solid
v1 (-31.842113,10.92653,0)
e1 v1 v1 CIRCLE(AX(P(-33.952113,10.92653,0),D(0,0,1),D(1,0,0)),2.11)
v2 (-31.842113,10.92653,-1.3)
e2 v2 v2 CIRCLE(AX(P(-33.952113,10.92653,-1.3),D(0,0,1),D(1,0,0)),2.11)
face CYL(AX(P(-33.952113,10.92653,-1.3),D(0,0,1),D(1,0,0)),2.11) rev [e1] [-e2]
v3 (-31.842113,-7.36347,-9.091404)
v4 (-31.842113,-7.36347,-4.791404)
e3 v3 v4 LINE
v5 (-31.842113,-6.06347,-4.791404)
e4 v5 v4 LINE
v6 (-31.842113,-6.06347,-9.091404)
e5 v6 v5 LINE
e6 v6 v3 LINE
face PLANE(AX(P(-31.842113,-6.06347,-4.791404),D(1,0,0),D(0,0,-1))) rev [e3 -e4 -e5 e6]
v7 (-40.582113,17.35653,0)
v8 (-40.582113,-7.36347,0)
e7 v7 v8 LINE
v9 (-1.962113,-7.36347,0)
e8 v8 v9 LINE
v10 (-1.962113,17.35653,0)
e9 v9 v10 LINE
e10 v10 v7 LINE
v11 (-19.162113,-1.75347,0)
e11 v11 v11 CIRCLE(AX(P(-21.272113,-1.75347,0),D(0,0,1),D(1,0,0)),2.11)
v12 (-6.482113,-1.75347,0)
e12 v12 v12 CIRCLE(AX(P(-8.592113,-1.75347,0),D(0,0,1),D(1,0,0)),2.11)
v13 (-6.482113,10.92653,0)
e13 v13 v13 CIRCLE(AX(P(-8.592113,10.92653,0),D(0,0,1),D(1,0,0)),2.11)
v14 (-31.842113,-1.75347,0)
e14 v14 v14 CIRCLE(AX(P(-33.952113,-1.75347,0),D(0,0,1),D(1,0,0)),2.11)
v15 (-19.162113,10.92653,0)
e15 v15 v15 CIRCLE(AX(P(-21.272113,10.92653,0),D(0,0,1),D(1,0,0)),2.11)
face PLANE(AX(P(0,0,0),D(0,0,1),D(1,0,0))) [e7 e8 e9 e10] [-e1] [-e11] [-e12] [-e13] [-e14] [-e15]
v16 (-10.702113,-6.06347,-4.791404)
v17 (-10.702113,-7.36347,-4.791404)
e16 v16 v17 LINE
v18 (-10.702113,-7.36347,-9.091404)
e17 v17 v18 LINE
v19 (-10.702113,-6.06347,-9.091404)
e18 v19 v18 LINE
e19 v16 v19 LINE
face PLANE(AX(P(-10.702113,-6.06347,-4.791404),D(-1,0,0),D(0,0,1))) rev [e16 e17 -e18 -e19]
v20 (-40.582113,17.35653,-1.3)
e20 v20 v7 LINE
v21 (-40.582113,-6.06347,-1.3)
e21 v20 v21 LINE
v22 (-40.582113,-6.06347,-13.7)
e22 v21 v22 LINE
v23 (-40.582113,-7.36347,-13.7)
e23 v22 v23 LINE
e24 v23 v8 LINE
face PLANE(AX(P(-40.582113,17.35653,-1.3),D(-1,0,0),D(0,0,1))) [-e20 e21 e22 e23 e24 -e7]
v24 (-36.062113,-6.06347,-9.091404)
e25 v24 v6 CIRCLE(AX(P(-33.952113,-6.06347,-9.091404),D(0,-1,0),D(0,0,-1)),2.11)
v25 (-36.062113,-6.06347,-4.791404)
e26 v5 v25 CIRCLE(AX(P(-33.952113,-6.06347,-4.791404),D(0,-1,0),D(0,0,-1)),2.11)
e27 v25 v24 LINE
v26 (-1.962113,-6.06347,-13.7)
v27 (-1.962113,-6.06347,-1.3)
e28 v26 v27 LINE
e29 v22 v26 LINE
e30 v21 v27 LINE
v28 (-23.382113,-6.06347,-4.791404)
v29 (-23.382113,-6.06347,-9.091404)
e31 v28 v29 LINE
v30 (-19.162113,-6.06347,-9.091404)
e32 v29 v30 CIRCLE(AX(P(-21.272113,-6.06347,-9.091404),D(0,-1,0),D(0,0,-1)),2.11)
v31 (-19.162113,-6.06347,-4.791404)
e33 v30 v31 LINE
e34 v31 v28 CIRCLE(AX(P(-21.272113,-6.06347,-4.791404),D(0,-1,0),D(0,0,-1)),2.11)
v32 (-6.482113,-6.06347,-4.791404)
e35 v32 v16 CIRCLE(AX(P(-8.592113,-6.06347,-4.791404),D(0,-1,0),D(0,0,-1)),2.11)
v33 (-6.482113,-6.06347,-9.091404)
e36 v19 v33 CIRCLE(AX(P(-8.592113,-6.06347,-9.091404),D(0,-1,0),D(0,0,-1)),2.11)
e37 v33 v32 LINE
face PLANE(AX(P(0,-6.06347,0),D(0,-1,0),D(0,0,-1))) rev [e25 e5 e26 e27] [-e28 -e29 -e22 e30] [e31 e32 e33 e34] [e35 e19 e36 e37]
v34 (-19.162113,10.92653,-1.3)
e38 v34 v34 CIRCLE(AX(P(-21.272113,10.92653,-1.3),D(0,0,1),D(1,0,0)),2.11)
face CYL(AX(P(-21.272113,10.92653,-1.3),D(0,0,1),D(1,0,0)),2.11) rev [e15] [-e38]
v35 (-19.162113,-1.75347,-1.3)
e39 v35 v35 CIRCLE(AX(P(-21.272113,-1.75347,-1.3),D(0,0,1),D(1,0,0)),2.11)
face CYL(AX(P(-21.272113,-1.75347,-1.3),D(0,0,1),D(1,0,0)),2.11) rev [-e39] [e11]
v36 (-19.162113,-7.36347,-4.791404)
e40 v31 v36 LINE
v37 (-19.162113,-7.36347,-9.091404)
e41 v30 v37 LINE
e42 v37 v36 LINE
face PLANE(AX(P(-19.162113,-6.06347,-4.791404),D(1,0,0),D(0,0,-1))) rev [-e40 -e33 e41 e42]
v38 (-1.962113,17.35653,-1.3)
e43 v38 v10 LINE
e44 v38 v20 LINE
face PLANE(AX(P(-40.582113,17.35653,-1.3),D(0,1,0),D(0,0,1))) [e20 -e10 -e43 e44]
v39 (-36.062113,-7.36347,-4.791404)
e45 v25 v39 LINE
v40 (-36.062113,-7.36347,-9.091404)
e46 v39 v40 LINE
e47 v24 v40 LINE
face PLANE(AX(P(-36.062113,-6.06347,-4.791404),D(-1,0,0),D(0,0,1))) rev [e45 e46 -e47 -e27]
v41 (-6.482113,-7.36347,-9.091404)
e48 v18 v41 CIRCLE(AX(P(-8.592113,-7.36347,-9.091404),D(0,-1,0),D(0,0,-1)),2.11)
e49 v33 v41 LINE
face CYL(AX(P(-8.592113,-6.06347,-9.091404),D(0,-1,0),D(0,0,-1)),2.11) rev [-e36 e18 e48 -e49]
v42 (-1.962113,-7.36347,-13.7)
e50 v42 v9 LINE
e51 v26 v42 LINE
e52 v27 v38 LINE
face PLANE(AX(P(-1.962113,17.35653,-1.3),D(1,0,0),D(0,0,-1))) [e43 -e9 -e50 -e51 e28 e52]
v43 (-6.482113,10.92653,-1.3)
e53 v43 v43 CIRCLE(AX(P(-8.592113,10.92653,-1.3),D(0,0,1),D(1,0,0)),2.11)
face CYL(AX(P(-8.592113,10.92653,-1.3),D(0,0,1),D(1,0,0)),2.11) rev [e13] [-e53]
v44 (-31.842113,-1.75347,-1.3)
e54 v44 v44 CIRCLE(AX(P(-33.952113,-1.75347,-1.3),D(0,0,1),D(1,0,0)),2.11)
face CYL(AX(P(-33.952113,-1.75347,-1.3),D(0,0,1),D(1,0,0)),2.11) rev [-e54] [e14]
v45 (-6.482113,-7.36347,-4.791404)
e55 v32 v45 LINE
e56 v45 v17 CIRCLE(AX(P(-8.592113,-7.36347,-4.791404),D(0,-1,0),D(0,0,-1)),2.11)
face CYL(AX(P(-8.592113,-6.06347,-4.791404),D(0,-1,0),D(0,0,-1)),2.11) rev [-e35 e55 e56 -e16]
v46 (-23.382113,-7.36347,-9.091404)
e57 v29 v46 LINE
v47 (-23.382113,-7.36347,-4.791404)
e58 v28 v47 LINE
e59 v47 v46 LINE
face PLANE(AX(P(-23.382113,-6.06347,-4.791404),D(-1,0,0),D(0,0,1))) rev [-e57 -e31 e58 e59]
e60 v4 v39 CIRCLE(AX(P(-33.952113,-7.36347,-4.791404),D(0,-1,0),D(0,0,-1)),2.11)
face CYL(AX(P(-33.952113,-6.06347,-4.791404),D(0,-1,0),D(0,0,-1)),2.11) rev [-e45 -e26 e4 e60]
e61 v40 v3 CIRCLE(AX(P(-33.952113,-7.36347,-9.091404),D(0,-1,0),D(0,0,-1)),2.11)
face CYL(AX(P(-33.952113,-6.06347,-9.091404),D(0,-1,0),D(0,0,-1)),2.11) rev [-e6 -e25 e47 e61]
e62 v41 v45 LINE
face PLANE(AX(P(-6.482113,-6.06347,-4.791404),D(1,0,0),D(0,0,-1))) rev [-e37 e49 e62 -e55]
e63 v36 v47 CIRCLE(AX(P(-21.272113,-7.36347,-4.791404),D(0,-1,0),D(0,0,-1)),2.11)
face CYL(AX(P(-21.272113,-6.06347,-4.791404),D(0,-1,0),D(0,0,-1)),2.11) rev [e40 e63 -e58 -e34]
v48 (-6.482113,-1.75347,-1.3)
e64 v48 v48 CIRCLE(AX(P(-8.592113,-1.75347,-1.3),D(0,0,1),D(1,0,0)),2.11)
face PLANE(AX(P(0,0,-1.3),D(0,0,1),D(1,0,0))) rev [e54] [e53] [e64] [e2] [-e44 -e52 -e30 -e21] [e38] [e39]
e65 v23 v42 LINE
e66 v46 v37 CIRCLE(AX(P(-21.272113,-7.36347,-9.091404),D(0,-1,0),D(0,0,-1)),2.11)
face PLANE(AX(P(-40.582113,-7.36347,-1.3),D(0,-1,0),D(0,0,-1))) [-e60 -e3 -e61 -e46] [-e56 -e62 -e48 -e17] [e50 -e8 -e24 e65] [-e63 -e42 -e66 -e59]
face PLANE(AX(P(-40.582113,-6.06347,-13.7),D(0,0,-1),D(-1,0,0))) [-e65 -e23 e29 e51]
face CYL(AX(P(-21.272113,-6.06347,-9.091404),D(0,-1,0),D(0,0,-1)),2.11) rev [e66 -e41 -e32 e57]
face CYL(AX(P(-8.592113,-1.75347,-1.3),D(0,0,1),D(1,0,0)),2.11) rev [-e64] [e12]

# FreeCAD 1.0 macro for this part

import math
import FreeCAD as App
import Part
import Sketcher
from FreeCAD import Vector

doc = App.newDocument("Part")
body = doc.addObject("PartDesign::Body", "Body")

# Sketch on XY plane
sketch1 = body.newObject("Sketcher::SketchObject", "Sketch")
sketch1.AttachmentSupport = (doc.getObject("XY_Plane"), [""])
sketch1.MapMode = "FlatFace"
sketch1.addGeometry(Part.LineSegment(Vector(-40.6, 17.4, 0), Vector(-40.6, -7.4, 0)), False)
sketch1.addGeometry(Part.LineSegment(Vector(-40.6, -7.4, 0), Vector(-2, -7.4, 0)), False)
sketch1.addGeometry(Part.LineSegment(Vector(-2, -7.4, 0), Vector(-2, 17.4, 0)), False)
sketch1.addGeometry(Part.LineSegment(Vector(-2, 17.4, 0), Vector(-40.6, 17.4, 0)), False)
sketch1.addGeometry(Part.Circle(Vector(-34, -1.8, 0), Vector(0, 0, 1), 2.1), False)
sketch1.addGeometry(Part.Circle(Vector(-21.3, -1.8, 0), Vector(0, 0, 1), 2.1), False)
sketch1.addGeometry(Part.Circle(Vector(-8.6, -1.8, 0), Vector(0, 0, 1), 2.1), False)
sketch1.addGeometry(Part.Circle(Vector(-34, 10.9, 0), Vector(0, 0, 1), 2.1), False)
sketch1.addGeometry(Part.Circle(Vector(-21.3, 10.9, 0), Vector(0, 0, 1), 2.1), False)
sketch1.addGeometry(Part.Circle(Vector(-8.6, 10.9, 0), Vector(0, 0, 1), 2.1), False)
sketch1.addConstraint(Sketcher.Constraint("Coincident", 0, 2, 1, 1))
sketch1.addConstraint(Sketcher.Constraint("Coincident", 1, 2, 2, 1))
sketch1.addConstraint(Sketcher.Constraint("Coincident", 2, 2, 3, 1))
sketch1.addConstraint(Sketcher.Constraint("Coincident", 3, 2, 0, 1))
sketch1.addConstraint(Sketcher.Constraint("Vertical", 0))
sketch1.addConstraint(Sketcher.Constraint("Horizontal", 1))
sketch1.addConstraint(Sketcher.Constraint("Vertical", 2))
sketch1.addConstraint(Sketcher.Constraint("Horizontal", 3))
sketch1.addConstraint(Sketcher.Constraint("Equal", 4, 5))
sketch1.addConstraint(Sketcher.Constraint("Equal", 5, 6))
sketch1.addConstraint(Sketcher.Constraint("Equal", 6, 7))
sketch1.addConstraint(Sketcher.Constraint("Equal", 7, 8))
sketch1.addConstraint(Sketcher.Constraint("Equal", 8, 9))
sketch1.addConstraint(Sketcher.Constraint("Horizontal", 4, 3, 5, 3))
sketch1.addConstraint(Sketcher.Constraint("Horizontal", 5, 3, 6, 3))
sketch1.addConstraint(Sketcher.Constraint("Horizontal", 7, 3, 8, 3))
sketch1.addConstraint(Sketcher.Constraint("Horizontal", 8, 3, 9, 3))
sketch1.addConstraint(Sketcher.Constraint("Vertical", 4, 3, 7, 3))
sketch1.addConstraint(Sketcher.Constraint("Vertical", 5, 3, 8, 3))
sketch1.addConstraint(Sketcher.Constraint("Vertical", 6, 3, 9, 3))
sketch1.addConstraint(Sketcher.Constraint("Diameter", 4, 4.22))
sketch1.addConstraint(Sketcher.Constraint("DistanceX", 1, 1, 1, 2, 38.62))
sketch1.addConstraint(Sketcher.Constraint("DistanceY", 0, 2, 0, 1, 24.72))
sketch1.addConstraint(Sketcher.Constraint("DistanceX", 4, 3, 5, 3, 12.68))
sketch1.addConstraint(Sketcher.Constraint("DistanceX", 5, 3, 6, 3, 12.68))
sketch1.addConstraint(Sketcher.Constraint("DistanceY", 4, 3, 7, 3, 12.68))
sketch1.addConstraint(Sketcher.Constraint("DistanceX", 0, 2, 4, 3, 6.63))
sketch1.addConstraint(Sketcher.Constraint("DistanceY", 0, 2, 4, 3, 5.61))
sketch1.addConstraint(Sketcher.Constraint("DistanceY", 4, 3, -1, 1, 1.75347))
sketch1.addConstraint(Sketcher.Constraint("DistanceX", 4, 3, -1, 1, 33.952113))
pad1 = body.newObject("PartDesign::Pad", "Pad")
pad1.Profile = sketch1
pad1.Length = 1.3
pad1.Reversed = True

# Sketch on XZ plane
sketch2 = body.newObject("Sketcher::SketchObject", "Sketch001")
sketch2.AttachmentSupport = (doc.getObject("XZ_Plane"), [""])
sketch2.MapMode = "FlatFace"
sketch2.AttachmentOffset = App.Placement(Vector(0, 0, 7.36347), App.Rotation())
sketch2.addGeometry(Part.LineSegment(Vector(-40.6, 0, 0), Vector(-40.6, -13.7, 0)), False)
sketch2.addGeometry(Part.LineSegment(Vector(-40.6, -13.7, 0), Vector(-2, -13.7, 0)), False)
sketch2.addGeometry(Part.LineSegment(Vector(-2, -13.7, 0), Vector(-2, 0, 0)), False)
sketch2.addGeometry(Part.LineSegment(Vector(-2, 0, 0), Vector(-40.6, 0, 0)), False)
sketch2.addGeometry(Part.ArcOfCircle(Part.Circle(Vector(-8.6, -4.8, 0), Vector(0, 0, 1), 2.1), math.radians(0), math.radians(180)), False)
sketch2.addGeometry(Part.LineSegment(Vector(-6.5, -4.8, 0), Vector(-6.5, -9.1, 0)), False)
sketch2.addGeometry(Part.ArcOfCircle(Part.Circle(Vector(-8.6, -9.1, 0), Vector(0, 0, 1), 2.1), math.radians(180), math.radians(360)), False)
sketch2.addGeometry(Part.LineSegment(Vector(-10.7, -9.1, 0), Vector(-10.7, -4.8, 0)), False)
sketch2.addGeometry(Part.ArcOfCircle(Part.Circle(Vector(-34, -4.8, 0), Vector(0, 0, 1), 2.1), math.radians(0), math.radians(180)), False)
sketch2.addGeometry(Part.LineSegment(Vector(-31.8, -4.8, 0), Vector(-31.8, -9.1, 0)), False)
sketch2.addGeometry(Part.ArcOfCircle(Part.Circle(Vector(-34, -9.1, 0), Vector(0, 0, 1), 2.1), math.radians(180), math.radians(360)), False)
sketch2.addGeometry(Part.LineSegment(Vector(-36.1, -9.1, 0), Vector(-36.1, -4.8, 0)), False)
sketch2.addGeometry(Part.ArcOfCircle(Part.Circle(Vector(-21.3, -4.8, 0), Vector(0, 0, 1), 2.1), math.radians(0), math.radians(180)), False)
sketch2.addGeometry(Part.LineSegment(Vector(-19.2, -4.8, 0), Vector(-19.2, -9.1, 0)), False)
sketch2.addGeometry(Part.ArcOfCircle(Part.Circle(Vector(-21.3, -9.1, 0), Vector(0, 0, 1), 2.1), math.radians(180), math.radians(360)), False)
sketch2.addGeometry(Part.LineSegment(Vector(-23.4, -9.1, 0), Vector(-23.4, -4.8, 0)), False)
sketch2.addConstraint(Sketcher.Constraint("Coincident", 0, 2, 1, 1))
sketch2.addConstraint(Sketcher.Constraint("Coincident", 1, 2, 2, 1))
sketch2.addConstraint(Sketcher.Constraint("Coincident", 2, 2, 3, 1))
sketch2.addConstraint(Sketcher.Constraint("Coincident", 3, 2, 0, 1))
sketch2.addConstraint(Sketcher.Constraint("Tangent", 4, 1, 5, 1))
sketch2.addConstraint(Sketcher.Constraint("Tangent", 5, 2, 6, 2))
sketch2.addConstraint(Sketcher.Constraint("Tangent", 6, 1, 7, 1))
sketch2.addConstraint(Sketcher.Constraint("Tangent", 7, 2, 4, 2))
sketch2.addConstraint(Sketcher.Constraint("Tangent", 8, 1, 9, 1))
sketch2.addConstraint(Sketcher.Constraint("Tangent", 9, 2, 10, 2))
sketch2.addConstraint(Sketcher.Constraint("Tangent", 10, 1, 11, 1))
sketch2.addConstraint(Sketcher.Constraint("Tangent", 11, 2, 8, 2))
sketch2.addConstraint(Sketcher.Constraint("Tangent", 12, 1, 13, 1))
sketch2.addConstraint(Sketcher.Constraint("Tangent", 13, 2, 14, 2))
sketch2.addConstraint(Sketcher.Constraint("Tangent", 14, 1, 15, 1))
sketch2.addConstraint(Sketcher.Constraint("Tangent", 15, 2, 12, 2))
sketch2.addConstraint(Sketcher.Constraint("Vertical", 0))
sketch2.addConstraint(Sketcher.Constraint("Horizontal", 1))
sketch2.addConstraint(Sketcher.Constraint("Vertical", 2))
sketch2.addConstraint(Sketcher.Constraint("Horizontal", 3))
sketch2.addConstraint(Sketcher.Constraint("Vertical", 5))
sketch2.addConstraint(Sketcher.Constraint("Vertical", 7))
sketch2.addConstraint(Sketcher.Constraint("Vertical", 9))
sketch2.addConstraint(Sketcher.Constraint("Vertical", 11))
sketch2.addConstraint(Sketcher.Constraint("Vertical", 13))
sketch2.addConstraint(Sketcher.Constraint("Vertical", 15))
sketch2.addConstraint(Sketcher.Constraint("Equal", 6, 8))
sketch2.addConstraint(Sketcher.Constraint("Equal", 10, 12))
sketch2.addConstraint(Sketcher.Constraint("PointOnObject", 2, 2, -1))
sketch2.addConstraint(Sketcher.Constraint("Horizontal", 4, 3, 8, 3))
sketch2.addConstraint(Sketcher.Constraint("Horizontal", 6, 3, 10, 3))
sketch2.addConstraint(Sketcher.Constraint("Horizontal", 8, 3, 12, 3))
sketch2.addConstraint(Sketcher.Constraint("Horizontal", 10, 3, 14, 3))
sketch2.addConstraint(Sketcher.Constraint("Radius", 4, 2.11))
sketch2.addConstraint(Sketcher.Constraint("DistanceY", 0, 2, 0, 1, 13.7))
sketch2.addConstraint(Sketcher.Constraint("DistanceY", 5, 2, 5, 1, 4.3))
sketch2.addConstraint(Sketcher.Constraint("DistanceX", 1, 1, 1, 2, 38.62))
sketch2.addConstraint(Sketcher.Constraint("DistanceX", 8, 3, 4, 3, 25.36))
sketch2.addConstraint(Sketcher.Constraint("DistanceX", 8, 3, 12, 3, 12.68))
sketch2.addConstraint(Sketcher.Constraint("DistanceX", 0, 2, 10, 3, 6.63))
sketch2.addConstraint(Sketcher.Constraint("DistanceX", 4, 3, -1, 1, 8.592113))
sketch2.addConstraint(Sketcher.Constraint("DistanceY", 4, 3, -1, 1, 4.791404))
pad2 = body.newObject("PartDesign::Pad", "Pad001")
pad2.Profile = sketch2
pad2.Length = 1.3
pad2.Reversed = True

doc.recompute()
